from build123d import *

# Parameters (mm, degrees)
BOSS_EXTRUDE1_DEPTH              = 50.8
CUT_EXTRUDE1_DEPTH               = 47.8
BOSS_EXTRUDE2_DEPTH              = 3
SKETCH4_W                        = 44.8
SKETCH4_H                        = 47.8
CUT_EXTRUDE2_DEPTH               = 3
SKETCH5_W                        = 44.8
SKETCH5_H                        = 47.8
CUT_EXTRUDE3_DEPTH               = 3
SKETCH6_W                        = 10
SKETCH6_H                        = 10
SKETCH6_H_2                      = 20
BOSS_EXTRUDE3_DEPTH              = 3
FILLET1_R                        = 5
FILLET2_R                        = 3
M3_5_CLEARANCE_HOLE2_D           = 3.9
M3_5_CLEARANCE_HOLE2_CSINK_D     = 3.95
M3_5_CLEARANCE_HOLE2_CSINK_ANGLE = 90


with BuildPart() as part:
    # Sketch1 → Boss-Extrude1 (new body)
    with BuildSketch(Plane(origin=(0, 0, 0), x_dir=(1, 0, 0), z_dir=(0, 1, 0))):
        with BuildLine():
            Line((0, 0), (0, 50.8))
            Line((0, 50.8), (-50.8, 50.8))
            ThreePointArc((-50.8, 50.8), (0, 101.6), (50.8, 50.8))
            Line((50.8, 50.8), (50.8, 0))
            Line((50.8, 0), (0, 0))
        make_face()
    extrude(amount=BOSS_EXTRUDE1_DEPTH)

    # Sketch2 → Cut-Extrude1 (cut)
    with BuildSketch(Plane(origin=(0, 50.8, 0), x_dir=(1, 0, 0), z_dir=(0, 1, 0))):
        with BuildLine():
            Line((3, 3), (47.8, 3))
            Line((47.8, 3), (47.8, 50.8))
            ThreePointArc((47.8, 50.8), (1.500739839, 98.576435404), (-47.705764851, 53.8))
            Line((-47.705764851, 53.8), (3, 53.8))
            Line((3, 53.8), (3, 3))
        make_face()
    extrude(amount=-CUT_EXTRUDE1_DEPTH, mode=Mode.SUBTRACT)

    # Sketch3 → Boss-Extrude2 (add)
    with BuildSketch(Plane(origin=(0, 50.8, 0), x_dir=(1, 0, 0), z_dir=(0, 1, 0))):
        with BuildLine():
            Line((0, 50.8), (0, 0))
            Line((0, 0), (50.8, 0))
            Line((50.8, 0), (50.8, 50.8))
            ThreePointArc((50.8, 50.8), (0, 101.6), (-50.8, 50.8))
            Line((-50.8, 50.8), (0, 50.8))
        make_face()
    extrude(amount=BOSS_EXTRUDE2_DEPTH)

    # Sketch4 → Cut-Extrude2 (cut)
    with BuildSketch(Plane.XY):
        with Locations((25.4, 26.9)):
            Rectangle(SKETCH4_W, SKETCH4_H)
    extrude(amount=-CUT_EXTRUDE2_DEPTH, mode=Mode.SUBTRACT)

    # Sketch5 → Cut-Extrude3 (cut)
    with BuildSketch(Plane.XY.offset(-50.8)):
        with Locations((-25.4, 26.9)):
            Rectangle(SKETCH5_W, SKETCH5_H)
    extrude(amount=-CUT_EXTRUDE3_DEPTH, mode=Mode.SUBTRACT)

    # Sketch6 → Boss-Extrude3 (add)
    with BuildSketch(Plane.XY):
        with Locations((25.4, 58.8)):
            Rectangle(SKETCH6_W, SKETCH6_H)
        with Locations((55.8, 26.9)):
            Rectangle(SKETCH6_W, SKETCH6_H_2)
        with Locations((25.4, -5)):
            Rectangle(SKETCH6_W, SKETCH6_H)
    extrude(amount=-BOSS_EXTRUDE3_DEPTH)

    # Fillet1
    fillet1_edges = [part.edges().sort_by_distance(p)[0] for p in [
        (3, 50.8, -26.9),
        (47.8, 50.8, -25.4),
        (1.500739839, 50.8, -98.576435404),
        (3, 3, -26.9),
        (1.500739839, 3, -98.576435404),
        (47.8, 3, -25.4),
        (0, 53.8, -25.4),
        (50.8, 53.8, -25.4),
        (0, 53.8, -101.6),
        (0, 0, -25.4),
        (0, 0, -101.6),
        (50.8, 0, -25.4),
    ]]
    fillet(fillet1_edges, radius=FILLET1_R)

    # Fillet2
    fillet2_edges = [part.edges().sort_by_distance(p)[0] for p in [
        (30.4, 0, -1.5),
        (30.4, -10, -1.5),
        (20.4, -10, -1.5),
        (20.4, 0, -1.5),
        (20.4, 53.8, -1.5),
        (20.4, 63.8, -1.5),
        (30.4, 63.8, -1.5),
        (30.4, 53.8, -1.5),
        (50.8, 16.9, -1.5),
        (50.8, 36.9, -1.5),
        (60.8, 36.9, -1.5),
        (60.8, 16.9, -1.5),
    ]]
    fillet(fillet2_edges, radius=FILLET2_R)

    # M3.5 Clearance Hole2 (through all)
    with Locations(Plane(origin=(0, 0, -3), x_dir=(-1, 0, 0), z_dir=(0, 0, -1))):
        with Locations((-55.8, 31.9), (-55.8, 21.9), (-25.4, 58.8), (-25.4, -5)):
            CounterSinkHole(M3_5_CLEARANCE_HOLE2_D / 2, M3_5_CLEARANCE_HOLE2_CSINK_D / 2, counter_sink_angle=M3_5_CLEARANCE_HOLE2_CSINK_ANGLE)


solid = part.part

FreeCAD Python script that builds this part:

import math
import FreeCAD as App
import Part
import Sketcher


def edges_at(feature, points):
    """Names of the edges that pass closest to the given points."""
    edges = feature.Shape.Edges
    near = lambda p: min(range(len(edges)), key=lambda i: edges[i].distToShape(Part.Vertex(*p))[0])
    return sorted({f"Edge{near(p) + 1}" for p in points})

doc = App.newDocument("Part")
body = doc.addObject("PartDesign::Body", "Body")

sketch1 = body.newObject("Sketcher::SketchObject", "Sketch")
sketch1.AttachmentSupport = (doc.getObject("XZ_Plane"), [""])
sketch1.MapMode = "FlatFace"
sketch1.addGeometry(Part.LineSegment(App.Vector(0, -50.8, 0), App.Vector(0, 0, 0)), False)
sketch1.addGeometry(Part.LineSegment(App.Vector(0, 0, 0), App.Vector(50.8, 0, 0)), False)
sketch1.addGeometry(Part.LineSegment(App.Vector(50.8, 0, 0), App.Vector(50.8, -50.8, 0)), False)
sketch1.addGeometry(Part.ArcOfCircle(Part.Circle(App.Vector(0, -50.8, 0), App.Vector(0, 0, 1), 50.8), math.radians(180), math.radians(360)), False)
sketch1.addGeometry(Part.LineSegment(App.Vector(-50.8, -50.8, 0), App.Vector(0, -50.8, 0)), False)
sketch1.addConstraint(Sketcher.Constraint("Coincident", 0, 2, 1, 1))
sketch1.addConstraint(Sketcher.Constraint("Coincident", 1, 2, 2, 1))
sketch1.addConstraint(Sketcher.Constraint("Tangent", 2, 2, 3, 2))
sketch1.addConstraint(Sketcher.Constraint("Coincident", 3, 1, 4, 1))
sketch1.addConstraint(Sketcher.Constraint("Coincident", 4, 2, 0, 1))
sketch1.addConstraint(Sketcher.Constraint("Vertical", 0))
sketch1.addConstraint(Sketcher.Constraint("Horizontal", 1))
sketch1.addConstraint(Sketcher.Constraint("Vertical", 2))
sketch1.addConstraint(Sketcher.Constraint("Horizontal", 4))
sketch1.addConstraint(Sketcher.Constraint("Coincident", 0, 2, -1, 1))
sketch1.addConstraint(Sketcher.Constraint("Coincident", 4, 2, 3, 3))
sketch1.addConstraint(Sketcher.Constraint("Equal", 4, 0))
sketch1.addConstraint(Sketcher.Constraint("Radius", 3, 50.8))
pad1 = body.newObject("PartDesign::Pad", "Pad")
pad1.Profile = sketch1
pad1.Length = 50.8
pad1.Reversed = True

sketch2 = body.newObject("Sketcher::SketchObject", "Sketch001")
sketch2.AttachmentSupport = (doc.getObject("XZ_Plane"), [""])
sketch2.MapMode = "FlatFace"
sketch2.AttachmentOffset = App.Placement(App.Vector(0, 0, -50.8), App.Rotation())
sketch2.addGeometry(Part.LineSegment(App.Vector(3, -3, 0), App.Vector(47.8, -3, 0)), False)
sketch2.addGeometry(Part.LineSegment(App.Vector(47.8, -3, 0), App.Vector(47.8, -50.8, 0)), False)
sketch2.addGeometry(Part.ArcOfCircle(Part.Circle(App.Vector(0, -50.8, 0), App.Vector(0, 0, 1), 47.8), math.radians(-176.401666), math.radians(0)), False)
sketch2.addGeometry(Part.LineSegment(App.Vector(-47.705765, -53.8, 0), App.Vector(3, -53.8, 0)), False)
sketch2.addGeometry(Part.LineSegment(App.Vector(3, -53.8, 0), App.Vector(3, -3, 0)), False)
sketch2.addConstraint(Sketcher.Constraint("Coincident", 0, 2, 1, 1))
sketch2.addConstraint(Sketcher.Constraint("Tangent", 1, 2, 2, 2))
sketch2.addConstraint(Sketcher.Constraint("Coincident", 2, 1, 3, 1))
sketch2.addConstraint(Sketcher.Constraint("Coincident", 3, 2, 4, 1))
sketch2.addConstraint(Sketcher.Constraint("Coincident", 4, 2, 0, 1))
sketch2.addConstraint(Sketcher.Constraint("Horizontal", 0))
sketch2.addConstraint(Sketcher.Constraint("Vertical", 1))
sketch2.addConstraint(Sketcher.Constraint("Horizontal", 3))
sketch2.addConstraint(Sketcher.Constraint("Vertical", 4))
sketch2.addConstraint(Sketcher.Constraint("PointOnObject", 2, 3, -2))
sketch2.addConstraint(Sketcher.Constraint("Radius", 2, 47.8))
sketch2.addConstraint(Sketcher.Constraint("DistanceX", 0, 1, 0, 2, 44.8))
sketch2.addConstraint(Sketcher.Constraint("DistanceY", 1, 2, 1, 1, 47.8))
sketch2.addConstraint(Sketcher.Constraint("DistanceY", 4, 1, 4, 2, 50.8))
sketch2.addConstraint(Sketcher.Constraint("DistanceY", 0, 2, -1, 1, 3.0))
pocket1 = body.newObject("PartDesign::Pocket", "Pocket")
pocket1.Profile = sketch2
pocket1.Length = 47.8
pocket1.Reversed = True

sketch3 = body.newObject("Sketcher::SketchObject", "Sketch002")
sketch3.AttachmentSupport = (doc.getObject("XZ_Plane"), [""])
sketch3.MapMode = "FlatFace"
sketch3.AttachmentOffset = App.Placement(App.Vector(0, 0, -50.8), App.Rotation())
sketch3.addGeometry(Part.LineSegment(App.Vector(0, -50.8, 0), App.Vector(0, 0, 0)), False)
sketch3.addGeometry(Part.LineSegment(App.Vector(0, 0, 0), App.Vector(50.8, 0, 0)), False)
sketch3.addGeometry(Part.LineSegment(App.Vector(50.8, 0, 0), App.Vector(50.8, -50.8, 0)), False)
sketch3.addGeometry(Part.ArcOfCircle(Part.Circle(App.Vector(0, -50.8, 0), App.Vector(0, 0, 1), 50.8), math.radians(180), math.radians(360)), False)
sketch3.addGeometry(Part.LineSegment(App.Vector(-50.8, -50.8, 0), App.Vector(0, -50.8, 0)), False)
sketch3.addConstraint(Sketcher.Constraint("Coincident", 0, 2, 1, 1))
sketch3.addConstraint(Sketcher.Constraint("Coincident", 1, 2, 2, 1))
sketch3.addConstraint(Sketcher.Constraint("Tangent", 2, 2, 3, 2))
sketch3.addConstraint(Sketcher.Constraint("Coincident", 3, 1, 4, 1))
sketch3.addConstraint(Sketcher.Constraint("Coincident", 4, 2, 0, 1))
sketch3.addConstraint(Sketcher.Constraint("Vertical", 0))
sketch3.addConstraint(Sketcher.Constraint("Horizontal", 1))
sketch3.addConstraint(Sketcher.Constraint("Vertical", 2))
sketch3.addConstraint(Sketcher.Constraint("Horizontal", 4))
sketch3.addConstraint(Sketcher.Constraint("Coincident", 0, 2, -1, 1))
sketch3.addConstraint(Sketcher.Constraint("Coincident", 4, 2, 3, 3))
sketch3.addConstraint(Sketcher.Constraint("Equal", 4, 0))
sketch3.addConstraint(Sketcher.Constraint("Radius", 3, 50.8))
pad2 = body.newObject("PartDesign::Pad", "Pad001")
pad2.Profile = sketch3
pad2.Length = 3
pad2.Reversed = True

sketch4 = body.newObject("Sketcher::SketchObject", "Sketch003")
sketch4.AttachmentSupport = (doc.getObject("XY_Plane"), [""])
sketch4.MapMode = "FlatFace"
sketch4.addGeometry(Part.LineSegment(App.Vector(3, 50.8, 0), App.Vector(3, 3, 0)), False)
sketch4.addGeometry(Part.LineSegment(App.Vector(3, 3, 0), App.Vector(47.8, 3, 0)), False)
sketch4.addGeometry(Part.LineSegment(App.Vector(47.8, 3, 0), App.Vector(47.8, 50.8, 0)), False)
sketch4.addGeometry(Part.LineSegment(App.Vector(47.8, 50.8, 0), App.Vector(3, 50.8, 0)), False)
sketch4.addConstraint(Sketcher.Constraint("Coincident", 0, 2, 1, 1))
sketch4.addConstraint(Sketcher.Constraint("Coincident", 1, 2, 2, 1))
sketch4.addConstraint(Sketcher.Constraint("Coincident", 2, 2, 3, 1))
sketch4.addConstraint(Sketcher.Constraint("Coincident", 3, 2, 0, 1))
sketch4.addConstraint(Sketcher.Constraint("Vertical", 0))
sketch4.addConstraint(Sketcher.Constraint("Horizontal", 1))
sketch4.addConstraint(Sketcher.Constraint("Vertical", 2))
sketch4.addConstraint(Sketcher.Constraint("Horizontal", 3))
sketch4.addConstraint(Sketcher.Constraint("DistanceX", 1, 1, 1, 2, 44.8))
sketch4.addConstraint(Sketcher.Constraint("DistanceY", 0, 2, 0, 1, 47.8))
sketch4.addConstraint(Sketcher.Constraint("DistanceX", -1, 1, 0, 2, 3.0))
sketch4.addConstraint(Sketcher.Constraint("DistanceY", -1, 1, 0, 2, 3.0))
pocket2 = body.newObject("PartDesign::Pocket", "Pocket001")
pocket2.Profile = sketch4
pocket2.Length = 3

sketch5 = body.newObject("Sketcher::SketchObject", "Sketch004")
sketch5.AttachmentSupport = (doc.getObject("XY_Plane"), [""])
sketch5.MapMode = "FlatFace"
sketch5.AttachmentOffset = App.Placement(App.Vector(0, 0, -50.8), App.Rotation())
sketch5.addGeometry(Part.LineSegment(App.Vector(-47.8, 50.8, 0), App.Vector(-47.8, 3, 0)), False)
sketch5.addGeometry(Part.LineSegment(App.Vector(-47.8, 3, 0), App.Vector(-3, 3, 0)), False)
sketch5.addGeometry(Part.LineSegment(App.Vector(-3, 3, 0), App.Vector(-3, 50.8, 0)), False)
sketch5.addGeometry(Part.LineSegment(App.Vector(-3, 50.8, 0), App.Vector(-47.8, 50.8, 0)), False)
sketch5.addConstraint(Sketcher.Constraint("Coincident", 0, 2, 1, 1))
sketch5.addConstraint(Sketcher.Constraint("Coincident", 1, 2, 2, 1))
sketch5.addConstraint(Sketcher.Constraint("Coincident", 2, 2, 3, 1))
sketch5.addConstraint(Sketcher.Constraint("Coincident", 3, 2, 0, 1))
sketch5.addConstraint(Sketcher.Constraint("Vertical", 0))
sketch5.addConstraint(Sketcher.Constraint("Horizontal", 1))
sketch5.addConstraint(Sketcher.Constraint("Vertical", 2))
sketch5.addConstraint(Sketcher.Constraint("Horizontal", 3))
sketch5.addConstraint(Sketcher.Constraint("DistanceX", 1, 1, 1, 2, 44.8))
sketch5.addConstraint(Sketcher.Constraint("DistanceY", 0, 2, 0, 1, 47.8))
sketch5.addConstraint(Sketcher.Constraint("DistanceY", -1, 1, 0, 2, 3.0))
sketch5.addConstraint(Sketcher.Constraint("DistanceX", 1, 2, -1, 1, 3.0))
pocket3 = body.newObject("PartDesign::Pocket", "Pocket002")
pocket3.Profile = sketch5
pocket3.Length = 3

sketch6 = body.newObject("Sketcher::SketchObject", "Sketch005")
sketch6.AttachmentSupport = (doc.getObject("XY_Plane"), [""])
sketch6.MapMode = "FlatFace"
sketch6.addGeometry(Part.LineSegment(App.Vector(20.4, 63.8, 0), App.Vector(20.4, 53.8, 0)), False)
sketch6.addGeometry(Part.LineSegment(App.Vector(20.4, 53.8, 0), App.Vector(30.4, 53.8, 0)), False)
sketch6.addGeometry(Part.LineSegment(App.Vector(30.4, 53.8, 0), App.Vector(30.4, 63.8, 0)), False)
sketch6.addGeometry(Part.LineSegment(App.Vector(30.4, 63.8, 0), App.Vector(20.4, 63.8, 0)), False)
sketch6.addGeometry(Part.LineSegment(App.Vector(50.8, 36.9, 0), App.Vector(50.8, 16.9, 0)), False)
sketch6.addGeometry(Part.LineSegment(App.Vector(50.8, 16.9, 0), App.Vector(60.8, 16.9, 0)), False)
sketch6.addGeometry(Part.LineSegment(App.Vector(60.8, 16.9, 0), App.Vector(60.8, 36.9, 0)), False)
sketch6.addGeometry(Part.LineSegment(App.Vector(60.8, 36.9, 0), App.Vector(50.8, 36.9, 0)), False)
sketch6.addGeometry(Part.LineSegment(App.Vector(20.4, 0, 0), App.Vector(20.4, -10, 0)), False)
sketch6.addGeometry(Part.LineSegment(App.Vector(20.4, -10, 0), App.Vector(30.4, -10, 0)), False)
sketch6.addGeometry(Part.LineSegment(App.Vector(30.4, -10, 0), App.Vector(30.4, 0, 0)), False)
sketch6.addGeometry(Part.LineSegment(App.Vector(30.4, 0, 0), App.Vector(20.4, 0, 0)), False)
sketch6.addConstraint(Sketcher.Constraint("Coincident", 0, 2, 1, 1))
sketch6.addConstraint(Sketcher.Constraint("Coincident", 1, 2, 2, 1))
sketch6.addConstraint(Sketcher.Constraint("Coincident", 2, 2, 3, 1))
sketch6.addConstraint(Sketcher.Constraint("Coincident", 3, 2, 0, 1))
sketch6.addConstraint(Sketcher.Constraint("Coincident", 4, 2, 5, 1))
sketch6.addConstraint(Sketcher.Constraint("Coincident", 5, 2, 6, 1))
sketch6.addConstraint(Sketcher.Constraint("Coincident", 6, 2, 7, 1))
sketch6.addConstraint(Sketcher.Constraint("Coincident", 7, 2, 4, 1))
sketch6.addConstraint(Sketcher.Constraint("Coincident", 8, 2, 9, 1))
sketch6.addConstraint(Sketcher.Constraint("Coincident", 9, 2, 10, 1))
sketch6.addConstraint(Sketcher.Constraint("Coincident", 10, 2, 11, 1))
sketch6.addConstraint(Sketcher.Constraint("Coincident", 11, 2, 8, 1))
sketch6.addConstraint(Sketcher.Constraint("Vertical", 0))
sketch6.addConstraint(Sketcher.Constraint("Horizontal", 1))
sketch6.addConstraint(Sketcher.Constraint("Vertical", 2))
sketch6.addConstraint(Sketcher.Constraint("Horizontal", 3))
sketch6.addConstraint(Sketcher.Constraint("Vertical", 4))
sketch6.addConstraint(Sketcher.Constraint("Horizontal", 5))
sketch6.addConstraint(Sketcher.Constraint("Vertical", 6))
sketch6.addConstraint(Sketcher.Constraint("Horizontal", 7))
sketch6.addConstraint(Sketcher.Constraint("Vertical", 8))
sketch6.addConstraint(Sketcher.Constraint("Horizontal", 9))
sketch6.addConstraint(Sketcher.Constraint("Vertical", 10))
sketch6.addConstraint(Sketcher.Constraint("Horizontal", 11))
sketch6.addConstraint(Sketcher.Constraint("PointOnObject", 10, 2, -1))
sketch6.addConstraint(Sketcher.Constraint("Vertical", 3, 2, 8, 2))
sketch6.addConstraint(Sketcher.Constraint("Vertical", 2, 2, 9, 2))
sketch6.addConstraint(Sketcher.Constraint("Equal", 3, 5))
sketch6.addConstraint(Sketcher.Constraint("Equal", 11, 0))
sketch6.addConstraint(Sketcher.Constraint("Equal", 2, 8))
sketch6.addConstraint(Sketcher.Constraint("DistanceX", 1, 1, 1, 2, 10.0))
sketch6.addConstraint(Sketcher.Constraint("DistanceY", 4, 2, 4, 1, 20.0))
sketch6.addConstraint(Sketcher.Constraint("DistanceX", -1, 1, 0, 2, 20.4))
sketch6.addConstraint(Sketcher.Constraint("DistanceY", -1, 1, 0, 2, 53.8))
sketch6.addConstraint(Sketcher.Constraint("DistanceX", -1, 1, 4, 2, 50.8))
sketch6.addConstraint(Sketcher.Constraint("DistanceY", -1, 1, 4, 2, 16.9))
pad3 = body.newObject("PartDesign::Pad", "Pad002")
pad3.Profile = sketch6
pad3.Length = 3
pad3.Reversed = True
doc.recompute()

fillet = body.newObject("PartDesign::Fillet", "Fillet")
fillet.Base = (pad3, edges_at(pad3, [
    (3, 50.8, -26.9),
    (47.8, 50.8, -25.4),
    (1.501, 50.8, -98.576),
    (3, 3, -26.9),
    (1.501, 3, -98.576),
    (47.8, 3, -25.4),
    (0, 53.8, -25.4),
    (50.8, 53.8, -25.4),
    (0, 53.8, -101.6),
    (0, 0, -25.4),
    (0, 0, -101.6),
    (50.8, 0, -25.4),
]))
fillet.Radius = 5
doc.recompute()

fillet2 = body.newObject("PartDesign::Fillet", "Fillet001")
fillet2.Base = (fillet, edges_at(fillet, [
    (30.4, 0, -1.5),
    (30.4, -10, -1.5),
    (20.4, -10, -1.5),
    (20.4, 0, -1.5),
    (20.4, 53.8, -1.5),
    (20.4, 63.8, -1.5),
    (30.4, 63.8, -1.5),
    (30.4, 53.8, -1.5),
    (50.8, 16.9, -1.5),
    (50.8, 36.9, -1.5),
    (60.8, 36.9, -1.5),
    (60.8, 16.9, -1.5),
]))
fillet2.Radius = 3

sketch7 = body.newObject("Sketcher::SketchObject", "Sketch006")
sketch7.AttachmentSupport = (doc.getObject("XY_Plane"), [""])
sketch7.MapMode = "FlatFace"
sketch7.AttachmentOffset = App.Placement(App.Vector(0, 0, -3), App.Rotation())
sketch7.addGeometry(Part.Circle(App.Vector(55.8, 31.9, 0), App.Vector(0, 0, 1), 1.95), False)
sketch7.addGeometry(Part.Circle(App.Vector(55.8, 21.9, 0), App.Vector(0, 0, 1), 1.95), False)
sketch7.addGeometry(Part.Circle(App.Vector(25.4, 58.8, 0), App.Vector(0, 0, 1), 1.95), False)
sketch7.addGeometry(Part.Circle(App.Vector(25.4, -5, 0), App.Vector(0, 0, 1), 1.95), False)
sketch7.addConstraint(Sketcher.Constraint("Equal", 0, 1))
sketch7.addConstraint(Sketcher.Constraint("Equal", 1, 2))
sketch7.addConstraint(Sketcher.Constraint("Equal", 2, 3))
sketch7.addConstraint(Sketcher.Constraint("Vertical", 0, 3, 1, 3))
sketch7.addConstraint(Sketcher.Constraint("Vertical", 2, 3, 3, 3))
sketch7.addConstraint(Sketcher.Constraint("Diameter", 0, 3.9))
sketch7.addConstraint(Sketcher.Constraint("DistanceY", 3, 3, -1, 1, 5.0))
sketch7.addConstraint(Sketcher.Constraint("DistanceY", 1, 3, 0, 3, 10.0))
sketch7.addConstraint(Sketcher.Constraint("DistanceX", -1, 1, 0, 3, 55.8))
sketch7.addConstraint(Sketcher.Constraint("DistanceY", -1, 1, 0, 3, 31.9))
sketch7.addConstraint(Sketcher.Constraint("DistanceX", -1, 1, 2, 3, 25.4))
sketch7.addConstraint(Sketcher.Constraint("DistanceY", -1, 1, 2, 3, 58.8))
doc.recompute()
hole = body.newObject("PartDesign::Hole", "Hole")
hole.Profile = sketch7
hole.ThreadType = "None"
hole.Diameter = 3.9
hole.DepthType = "ThroughAll"
hole.HoleCutType = "Countersink"
hole.HoleCutDiameter = 3.95
hole.HoleCutCountersinkAngle = 90
hole.Reversed = True

doc.recompute()
